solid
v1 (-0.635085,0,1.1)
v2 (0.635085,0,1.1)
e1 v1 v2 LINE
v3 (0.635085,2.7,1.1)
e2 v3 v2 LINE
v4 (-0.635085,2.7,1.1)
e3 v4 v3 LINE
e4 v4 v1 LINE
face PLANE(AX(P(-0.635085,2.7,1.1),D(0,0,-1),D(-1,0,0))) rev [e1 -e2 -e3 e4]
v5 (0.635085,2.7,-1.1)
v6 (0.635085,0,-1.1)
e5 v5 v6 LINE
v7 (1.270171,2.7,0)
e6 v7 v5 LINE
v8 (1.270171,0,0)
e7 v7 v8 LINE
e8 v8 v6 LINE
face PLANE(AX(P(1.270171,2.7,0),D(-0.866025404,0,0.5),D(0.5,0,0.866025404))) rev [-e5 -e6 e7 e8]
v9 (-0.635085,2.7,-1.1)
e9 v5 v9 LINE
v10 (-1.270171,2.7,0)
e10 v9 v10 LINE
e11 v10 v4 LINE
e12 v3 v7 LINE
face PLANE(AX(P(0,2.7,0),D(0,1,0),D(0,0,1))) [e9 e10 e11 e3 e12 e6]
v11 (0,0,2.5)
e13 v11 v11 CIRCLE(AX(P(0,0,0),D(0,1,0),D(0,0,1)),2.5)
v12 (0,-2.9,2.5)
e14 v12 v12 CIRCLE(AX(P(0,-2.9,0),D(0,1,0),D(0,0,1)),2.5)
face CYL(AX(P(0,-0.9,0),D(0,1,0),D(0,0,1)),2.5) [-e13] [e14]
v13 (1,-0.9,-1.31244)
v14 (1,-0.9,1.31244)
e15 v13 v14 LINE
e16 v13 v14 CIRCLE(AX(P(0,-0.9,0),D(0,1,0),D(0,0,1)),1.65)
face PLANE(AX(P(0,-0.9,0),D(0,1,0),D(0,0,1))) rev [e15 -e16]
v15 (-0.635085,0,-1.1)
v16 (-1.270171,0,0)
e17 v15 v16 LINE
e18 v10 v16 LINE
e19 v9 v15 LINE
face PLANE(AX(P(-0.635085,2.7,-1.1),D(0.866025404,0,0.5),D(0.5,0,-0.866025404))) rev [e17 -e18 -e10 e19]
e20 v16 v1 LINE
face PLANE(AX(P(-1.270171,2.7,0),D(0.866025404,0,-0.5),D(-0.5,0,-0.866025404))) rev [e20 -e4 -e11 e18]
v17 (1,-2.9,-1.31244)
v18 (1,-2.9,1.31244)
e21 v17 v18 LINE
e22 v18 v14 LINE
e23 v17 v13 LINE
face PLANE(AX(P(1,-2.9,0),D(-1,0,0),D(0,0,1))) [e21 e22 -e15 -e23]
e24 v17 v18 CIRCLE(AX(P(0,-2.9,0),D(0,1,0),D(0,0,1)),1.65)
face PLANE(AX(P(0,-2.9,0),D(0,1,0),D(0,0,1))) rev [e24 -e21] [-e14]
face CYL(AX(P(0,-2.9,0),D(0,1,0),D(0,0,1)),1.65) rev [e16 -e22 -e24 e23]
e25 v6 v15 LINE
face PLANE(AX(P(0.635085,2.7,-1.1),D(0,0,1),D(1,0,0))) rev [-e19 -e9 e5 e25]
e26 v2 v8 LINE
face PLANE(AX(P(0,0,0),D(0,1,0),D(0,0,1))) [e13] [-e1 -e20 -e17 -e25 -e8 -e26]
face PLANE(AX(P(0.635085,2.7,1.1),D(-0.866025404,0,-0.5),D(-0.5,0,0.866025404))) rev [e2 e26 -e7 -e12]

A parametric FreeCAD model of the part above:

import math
import FreeCAD as App
import Part
import Sketcher

V = App.Vector
Q = App.Units.Quantity

doc = App.newDocument("Part")
body = doc.addObject("PartDesign::Body", "Body")

sketch1 = doc.addObject("Sketcher::SketchObject", "Sketch")
body.addObject(sketch1)
sketch1.AttachmentSupport = (doc.XZ_Plane, [""])
sketch1.MapMode = "FlatFace"
sketch1.addGeometry(Part.LineSegment(V(1.3, 0, 0), V(0.6, -1.1, 0)), False)
sketch1.addGeometry(Part.LineSegment(V(0.6, -1.1, 0), V(-0.6, -1.1, 0)), False)
sketch1.addGeometry(Part.LineSegment(V(-0.6, -1.1, 0), V(-1.3, 0, 0)), False)
sketch1.addGeometry(Part.LineSegment(V(-1.3, 0, 0), V(-0.6, 1.1, 0)), False)
sketch1.addGeometry(Part.LineSegment(V(-0.6, 1.1, 0), V(0.6, 1.1, 0)), False)
sketch1.addGeometry(Part.LineSegment(V(0.6, 1.1, 0), V(1.3, 0, 0)), False)
sketch1.addConstraint(Sketcher.Constraint("Coincident", 0, 2, 1, 1))
sketch1.addConstraint(Sketcher.Constraint("Coincident", 1, 2, 2, 1))
sketch1.addConstraint(Sketcher.Constraint("Coincident", 2, 2, 3, 1))
sketch1.addConstraint(Sketcher.Constraint("Coincident", 3, 2, 4, 1))
sketch1.addConstraint(Sketcher.Constraint("Coincident", 4, 2, 5, 1))
sketch1.addConstraint(Sketcher.Constraint("Coincident", 5, 2, 0, 1))
sketch1.addConstraint(Sketcher.Constraint("Horizontal", 1))
sketch1.addConstraint(Sketcher.Constraint("Horizontal", 4))
sketch1.addConstraint(Sketcher.Constraint("Symmetric", 0, 2, 3, 2, -1, 1))
sketch1.addConstraint(Sketcher.Constraint("Symmetric", 2, 2, 5, 2, -1, 1))
sketch1.addConstraint(Sketcher.Constraint("PointOnObject", 2, 2, -1))
sketch1.addConstraint(Sketcher.Constraint("Parallel", 2, 5))
sketch1.addConstraint(Sketcher.Constraint("Vertical", 1, 2, 3, 2))
sketch1.addConstraint(Sketcher.Constraint("Angle", 0, Q("-120 deg")))
sketch1.addConstraint(Sketcher.Constraint("DistanceY", 0, 2, -1, 1, Q("1.1 mm")))
sketch1.addConstraint(Sketcher.Constraint("DistanceX", 1, 2, 1, 1, Q("1.270171 mm")))
pad1 = doc.addObject("PartDesign::Pad", "Pad")
body.addObject(pad1)
pad1.Profile = sketch1
pad1.Length = 2.7
pad1.Reversed = True

sketch2 = doc.addObject("Sketcher::SketchObject", "Sketch001")
body.addObject(sketch2)
sketch2.AttachmentSupport = (doc.XZ_Plane, [""])
sketch2.MapMode = "FlatFace"
sketch2.addGeometry(Part.Circle(V(0, 0, 0), V(0, 0, 1), 2.5), False)
sketch2.addConstraint(Sketcher.Constraint("Coincident", 0, 3, -1, 1))
sketch2.addConstraint(Sketcher.Constraint("Diameter", 0, Q("5 mm")))
pad2 = doc.addObject("PartDesign::Pad", "Pad001")
body.addObject(pad2)
pad2.Profile = sketch2
pad2.Length = 0.9

sketch3 = doc.addObject("Sketcher::SketchObject", "Sketch002")
body.addObject(sketch3)
sketch3.AttachmentSupport = (doc.XZ_Plane, [""])
sketch3.MapMode = "FlatFace"
sketch3.AttachmentOffset = App.Placement(V(0, 0, 0.9), App.Rotation())
sketch3.addGeometry(Part.Circle(V(0, 0, 0), V(0, 0, 1), 2.5), False)
sketch3.addGeometry(Part.ArcOfCircle(Part.Circle(V(0, 0, 0), V(0, 0, 1), 1.6), math.radians(53), math.radians(307)), False)
sketch3.addGeometry(Part.LineSegment(V(1, -1.3, 0), V(1, 1.3, 0)), False)
sketch3.addConstraint(Sketcher.Constraint("Coincident", 1, 1, 2, 2))
sketch3.addConstraint(Sketcher.Constraint("Coincident", 2, 1, 1, 2))
sketch3.addConstraint(Sketcher.Constraint("Vertical", 2))
sketch3.addConstraint(Sketcher.Constraint("Coincident", 0, 3, -1, 1))
sketch3.addConstraint(Sketcher.Constraint("Coincident", 1, 3, -1, 1))
sketch3.addConstraint(Sketcher.Constraint("Diameter", 0, Q("5 mm")))
sketch3.addConstraint(Sketcher.Constraint("Radius", 1, Q("1.65 mm")))
sketch3.addConstraint(Sketcher.Constraint("DistanceX", -1, 1, 1, 1, Q("1 mm")))
pad3 = doc.addObject("PartDesign::Pad", "Pad002")
body.addObject(pad3)
pad3.Profile = sketch3
pad3.Length = 2

doc.recompute()
